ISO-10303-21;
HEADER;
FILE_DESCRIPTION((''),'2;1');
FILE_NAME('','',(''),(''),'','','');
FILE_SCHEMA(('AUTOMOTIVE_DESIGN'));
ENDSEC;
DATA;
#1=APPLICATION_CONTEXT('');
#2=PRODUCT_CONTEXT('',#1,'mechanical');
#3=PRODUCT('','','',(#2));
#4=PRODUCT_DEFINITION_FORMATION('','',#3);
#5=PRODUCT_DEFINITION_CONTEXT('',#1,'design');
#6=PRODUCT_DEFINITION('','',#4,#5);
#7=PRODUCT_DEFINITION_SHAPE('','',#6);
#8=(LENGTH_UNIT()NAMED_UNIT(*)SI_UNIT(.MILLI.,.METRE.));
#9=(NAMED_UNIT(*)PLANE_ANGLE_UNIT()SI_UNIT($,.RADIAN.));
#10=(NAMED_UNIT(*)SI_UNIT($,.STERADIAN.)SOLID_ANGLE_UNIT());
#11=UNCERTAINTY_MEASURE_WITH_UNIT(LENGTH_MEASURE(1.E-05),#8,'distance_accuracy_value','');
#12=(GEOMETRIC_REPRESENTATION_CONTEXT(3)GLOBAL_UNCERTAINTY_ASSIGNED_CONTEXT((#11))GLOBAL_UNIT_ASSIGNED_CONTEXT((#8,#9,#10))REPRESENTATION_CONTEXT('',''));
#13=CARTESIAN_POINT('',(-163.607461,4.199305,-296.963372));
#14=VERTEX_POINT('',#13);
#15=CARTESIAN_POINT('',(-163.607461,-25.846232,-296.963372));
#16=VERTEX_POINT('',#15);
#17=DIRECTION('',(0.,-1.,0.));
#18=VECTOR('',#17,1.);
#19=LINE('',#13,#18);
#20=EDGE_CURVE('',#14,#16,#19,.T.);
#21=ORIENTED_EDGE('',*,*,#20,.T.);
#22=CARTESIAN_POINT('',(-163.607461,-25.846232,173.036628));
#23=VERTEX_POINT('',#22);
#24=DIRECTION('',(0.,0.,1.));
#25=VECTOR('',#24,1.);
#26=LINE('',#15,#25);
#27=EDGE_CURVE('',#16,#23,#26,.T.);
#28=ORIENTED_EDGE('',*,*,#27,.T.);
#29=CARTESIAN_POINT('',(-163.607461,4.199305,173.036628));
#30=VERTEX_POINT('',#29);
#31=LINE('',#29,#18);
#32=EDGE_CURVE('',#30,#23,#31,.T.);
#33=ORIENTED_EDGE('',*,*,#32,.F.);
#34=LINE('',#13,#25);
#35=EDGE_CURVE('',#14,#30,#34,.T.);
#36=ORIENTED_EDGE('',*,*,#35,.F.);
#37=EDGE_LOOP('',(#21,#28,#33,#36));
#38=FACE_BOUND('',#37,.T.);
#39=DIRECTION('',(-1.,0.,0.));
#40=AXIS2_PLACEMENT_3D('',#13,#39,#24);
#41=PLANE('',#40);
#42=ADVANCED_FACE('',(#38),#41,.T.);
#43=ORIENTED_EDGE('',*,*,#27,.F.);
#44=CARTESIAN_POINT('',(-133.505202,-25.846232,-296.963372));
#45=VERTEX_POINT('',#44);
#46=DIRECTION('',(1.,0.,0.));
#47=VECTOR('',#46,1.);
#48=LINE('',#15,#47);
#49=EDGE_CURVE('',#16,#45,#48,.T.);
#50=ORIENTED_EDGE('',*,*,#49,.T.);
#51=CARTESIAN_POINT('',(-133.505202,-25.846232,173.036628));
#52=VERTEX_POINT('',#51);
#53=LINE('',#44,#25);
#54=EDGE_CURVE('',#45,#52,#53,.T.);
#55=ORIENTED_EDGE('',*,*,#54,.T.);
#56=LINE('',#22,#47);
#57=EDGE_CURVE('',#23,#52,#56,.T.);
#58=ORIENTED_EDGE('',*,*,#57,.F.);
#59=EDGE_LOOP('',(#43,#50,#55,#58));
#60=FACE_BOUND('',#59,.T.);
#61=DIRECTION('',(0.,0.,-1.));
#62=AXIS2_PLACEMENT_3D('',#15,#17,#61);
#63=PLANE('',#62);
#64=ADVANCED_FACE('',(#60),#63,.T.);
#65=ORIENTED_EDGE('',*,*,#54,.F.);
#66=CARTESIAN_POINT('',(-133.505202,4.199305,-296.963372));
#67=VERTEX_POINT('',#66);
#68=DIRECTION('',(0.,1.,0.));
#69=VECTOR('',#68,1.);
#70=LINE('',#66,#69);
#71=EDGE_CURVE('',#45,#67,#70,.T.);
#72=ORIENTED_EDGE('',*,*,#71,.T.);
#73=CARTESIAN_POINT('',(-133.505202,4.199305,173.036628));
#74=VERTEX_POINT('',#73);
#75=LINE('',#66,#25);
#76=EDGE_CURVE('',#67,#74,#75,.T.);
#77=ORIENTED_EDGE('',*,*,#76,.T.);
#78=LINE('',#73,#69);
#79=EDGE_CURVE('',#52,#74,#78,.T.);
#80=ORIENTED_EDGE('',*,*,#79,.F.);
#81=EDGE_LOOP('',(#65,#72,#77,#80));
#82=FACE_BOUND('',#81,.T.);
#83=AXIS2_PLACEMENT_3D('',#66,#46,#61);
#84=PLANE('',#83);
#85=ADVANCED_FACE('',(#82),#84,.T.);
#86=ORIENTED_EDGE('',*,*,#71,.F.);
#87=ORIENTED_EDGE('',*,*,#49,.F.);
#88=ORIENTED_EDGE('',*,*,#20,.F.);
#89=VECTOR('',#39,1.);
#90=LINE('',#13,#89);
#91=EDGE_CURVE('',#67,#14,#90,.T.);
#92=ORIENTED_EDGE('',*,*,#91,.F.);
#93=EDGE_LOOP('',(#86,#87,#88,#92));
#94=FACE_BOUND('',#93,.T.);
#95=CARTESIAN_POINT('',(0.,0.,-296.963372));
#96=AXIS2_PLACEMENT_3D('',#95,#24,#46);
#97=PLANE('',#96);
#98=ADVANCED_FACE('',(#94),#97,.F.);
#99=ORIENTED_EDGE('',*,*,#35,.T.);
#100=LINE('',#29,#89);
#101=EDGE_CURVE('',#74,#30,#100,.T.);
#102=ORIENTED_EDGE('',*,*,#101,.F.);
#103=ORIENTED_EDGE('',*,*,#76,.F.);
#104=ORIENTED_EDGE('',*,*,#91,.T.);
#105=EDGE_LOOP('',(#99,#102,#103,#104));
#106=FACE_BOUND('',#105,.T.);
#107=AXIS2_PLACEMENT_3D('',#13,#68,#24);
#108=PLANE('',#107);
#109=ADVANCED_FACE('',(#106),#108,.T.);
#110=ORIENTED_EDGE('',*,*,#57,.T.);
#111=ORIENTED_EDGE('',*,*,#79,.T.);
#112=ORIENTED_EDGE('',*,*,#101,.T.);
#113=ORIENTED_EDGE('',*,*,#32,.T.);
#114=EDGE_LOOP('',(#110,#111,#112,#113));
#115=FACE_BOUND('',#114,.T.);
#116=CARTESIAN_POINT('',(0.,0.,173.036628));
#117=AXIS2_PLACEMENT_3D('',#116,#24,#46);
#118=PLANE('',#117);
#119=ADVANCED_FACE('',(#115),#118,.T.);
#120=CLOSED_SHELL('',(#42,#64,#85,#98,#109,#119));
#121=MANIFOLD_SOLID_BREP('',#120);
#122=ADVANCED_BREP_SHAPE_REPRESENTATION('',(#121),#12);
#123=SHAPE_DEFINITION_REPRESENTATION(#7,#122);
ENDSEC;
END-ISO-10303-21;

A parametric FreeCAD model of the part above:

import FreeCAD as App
import Part
import Sketcher


def add_polygon(sketch, points):
    """Adds a closed chain of lines whose ends are joined by coincident constraints."""
    first, n = sketch.GeometryCount, len(points)
    for a, b in zip(points, points[1:] + points[:1]):
        sketch.addGeometry(Part.LineSegment(App.Vector(*a, 0), App.Vector(*b, 0)), False)
    for i in range(n):
        sketch.addConstraint(Sketcher.Constraint("Coincident", first + i, 2, first + (i + 1) % n, 1))

doc = App.newDocument("Part")
params = doc.addObject("Spreadsheet::Sheet", "Params")
for row, (alias, value) in enumerate([
    ("pad1_length", "470 mm"),
], start=1):
    params.set(f"A{row}", alias)
    params.set(f"B{row}", "=" + value)
    params.setAlias(f"B{row}", alias)

body = doc.addObject("PartDesign::Body", "Body")

sketch1 = body.newObject("Sketcher::SketchObject", "Sketch")
sketch1.AttachmentSupport = (doc.getObject("XY_Plane"), [""])
sketch1.MapMode = "FlatFace"
sketch1.AttachmentOffset = App.Placement(App.Vector(0, 0, 173.036628), App.Rotation())
add_polygon(sketch1, [(-163.607461, 4.199305), (-163.607461, -25.846232), (-133.505202, -25.846232), (-133.505202, 4.199305)])
sketch1.addConstraint([
    Sketcher.Constraint("Vertical", 0),
    Sketcher.Constraint("Horizontal", 1),
    Sketcher.Constraint("Vertical", 2),
    Sketcher.Constraint("Horizontal", 3),
    Sketcher.Constraint("DistanceX", 1, 1, 1, 2, 30.102259),
    Sketcher.Constraint("DistanceX", 1, 2, -1, 1, 133.505202),
    Sketcher.Constraint("DistanceY", 0, 2, 0, 1, 30.045537),
    Sketcher.Constraint("DistanceY", 0, 2, -1, 1, 25.846232),
])
pad1 = body.newObject("PartDesign::Pad", "Pad")
pad1.Profile = sketch1
pad1.setExpression("Length", "Params.pad1_length")
pad1.Reversed = True

doc.recompute()
